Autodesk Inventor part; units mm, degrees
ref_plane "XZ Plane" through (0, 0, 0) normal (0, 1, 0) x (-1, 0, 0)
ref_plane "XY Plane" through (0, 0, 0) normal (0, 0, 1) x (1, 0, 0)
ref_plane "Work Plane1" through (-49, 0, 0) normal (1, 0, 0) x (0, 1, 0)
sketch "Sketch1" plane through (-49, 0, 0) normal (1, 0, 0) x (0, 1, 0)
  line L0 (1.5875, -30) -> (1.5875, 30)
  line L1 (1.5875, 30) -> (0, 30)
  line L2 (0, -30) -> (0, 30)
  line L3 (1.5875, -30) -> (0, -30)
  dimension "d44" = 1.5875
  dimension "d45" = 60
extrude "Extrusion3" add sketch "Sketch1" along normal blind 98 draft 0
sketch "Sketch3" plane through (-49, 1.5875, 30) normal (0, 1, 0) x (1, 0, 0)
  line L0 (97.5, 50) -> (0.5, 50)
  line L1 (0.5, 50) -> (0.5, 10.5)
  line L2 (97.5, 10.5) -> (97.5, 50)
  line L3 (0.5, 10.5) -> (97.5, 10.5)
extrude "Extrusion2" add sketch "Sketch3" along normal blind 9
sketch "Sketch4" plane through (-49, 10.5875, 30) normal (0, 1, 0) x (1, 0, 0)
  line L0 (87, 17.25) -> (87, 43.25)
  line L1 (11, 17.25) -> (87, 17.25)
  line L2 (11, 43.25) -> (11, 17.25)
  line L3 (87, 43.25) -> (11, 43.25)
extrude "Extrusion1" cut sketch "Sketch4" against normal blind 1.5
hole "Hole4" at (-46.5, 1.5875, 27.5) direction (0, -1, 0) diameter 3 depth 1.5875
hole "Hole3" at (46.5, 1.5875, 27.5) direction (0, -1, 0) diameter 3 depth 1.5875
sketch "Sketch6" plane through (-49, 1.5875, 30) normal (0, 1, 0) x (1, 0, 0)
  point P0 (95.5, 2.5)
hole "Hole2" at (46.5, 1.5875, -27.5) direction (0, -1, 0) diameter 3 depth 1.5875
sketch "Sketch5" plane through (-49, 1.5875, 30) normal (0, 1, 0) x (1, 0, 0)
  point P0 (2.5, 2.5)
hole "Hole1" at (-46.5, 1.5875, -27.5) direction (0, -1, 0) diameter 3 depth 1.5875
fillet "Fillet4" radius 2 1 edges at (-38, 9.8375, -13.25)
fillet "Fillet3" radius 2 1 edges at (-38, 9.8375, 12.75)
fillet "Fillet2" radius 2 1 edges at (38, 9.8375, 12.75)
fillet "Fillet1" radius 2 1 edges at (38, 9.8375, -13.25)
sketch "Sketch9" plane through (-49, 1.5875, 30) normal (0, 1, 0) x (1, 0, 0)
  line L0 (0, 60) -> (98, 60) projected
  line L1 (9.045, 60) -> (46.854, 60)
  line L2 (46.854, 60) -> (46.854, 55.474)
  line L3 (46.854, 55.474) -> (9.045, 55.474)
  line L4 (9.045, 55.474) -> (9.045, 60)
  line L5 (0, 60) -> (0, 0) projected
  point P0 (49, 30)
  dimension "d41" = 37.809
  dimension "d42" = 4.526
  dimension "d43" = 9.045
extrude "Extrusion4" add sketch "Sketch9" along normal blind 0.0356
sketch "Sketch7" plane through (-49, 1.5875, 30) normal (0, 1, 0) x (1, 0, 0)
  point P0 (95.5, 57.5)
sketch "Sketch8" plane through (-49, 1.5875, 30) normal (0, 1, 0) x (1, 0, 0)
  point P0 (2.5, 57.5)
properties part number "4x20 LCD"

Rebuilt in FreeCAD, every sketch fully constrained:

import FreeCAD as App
import Part
import Sketcher
Q = App.Units.Quantity


def edges_at(feature, points):
    """Names of the edges that pass closest to the given points."""
    edges = feature.Shape.Edges
    near = lambda p: min(range(len(edges)), key=lambda i: edges[i].distToShape(Part.Vertex(*p))[0])
    return sorted({f"Edge{near(p) + 1}" for p in points})

doc = App.newDocument("Part")
body = doc.addObject("PartDesign::Body", "Body")

# Sketch on YZ plane
sketch1 = body.newObject("Sketcher::SketchObject", "Sketch")
sketch1.AttachmentSupport = (doc.getObject("YZ_Plane"), [""])
sketch1.MapMode = "FlatFace"
sketch1.AttachmentOffset = App.Placement(App.Vector(0, 0, -49), App.Rotation())
sketch1.addGeometry(Part.LineSegment(App.Vector(0, -30, 0), App.Vector(1.6, -30, 0)), False)
sketch1.addGeometry(Part.LineSegment(App.Vector(1.6, -30, 0), App.Vector(1.6, 30, 0)), False)
sketch1.addGeometry(Part.LineSegment(App.Vector(1.6, 30, 0), App.Vector(0, 30, 0)), False)
sketch1.addGeometry(Part.LineSegment(App.Vector(0, 30, 0), App.Vector(0, -30, 0)), False)
sketch1.addConstraint(Sketcher.Constraint("Coincident", 0, 2, 1, 1))
sketch1.addConstraint(Sketcher.Constraint("Coincident", 1, 2, 2, 1))
sketch1.addConstraint(Sketcher.Constraint("Coincident", 2, 2, 3, 1))
sketch1.addConstraint(Sketcher.Constraint("Coincident", 3, 2, 0, 1))
sketch1.addConstraint(Sketcher.Constraint("Horizontal", 0))
sketch1.addConstraint(Sketcher.Constraint("Vertical", 1))
sketch1.addConstraint(Sketcher.Constraint("Horizontal", 2))
sketch1.addConstraint(Sketcher.Constraint("Vertical", 3))
sketch1.addConstraint(Sketcher.Constraint("Symmetric", 2, 2, 3, 2, -1, 1))
sketch1.addConstraint(Sketcher.Constraint("DistanceY", 1, 1, 1, 2, Q("60 mm")))
sketch1.addConstraint(Sketcher.Constraint("DistanceX", 0, 1, 0, 2, Q("1.5875 mm")))
pad1 = body.newObject("PartDesign::Pad", "Pad")
pad1.Profile = sketch1
pad1.Length = 98

# Sketch on XZ plane
sketch2 = body.newObject("Sketcher::SketchObject", "Sketch001")
sketch2.AttachmentSupport = (doc.getObject("XZ_Plane"), [""])
sketch2.MapMode = "FlatFace"
sketch2.AttachmentOffset = App.Placement(App.Vector(0, 0, -1.5875), App.Rotation())
sketch2.addGeometry(Part.LineSegment(App.Vector(48, 20, 0), App.Vector(48, -20, 0)), False)
sketch2.addGeometry(Part.LineSegment(App.Vector(48, -20, 0), App.Vector(-48, -20, 0)), False)
sketch2.addGeometry(Part.LineSegment(App.Vector(-48, -20, 0), App.Vector(-48, 20, 0)), False)
sketch2.addGeometry(Part.LineSegment(App.Vector(-48, 20, 0), App.Vector(48, 20, 0)), False)
sketch2.addConstraint(Sketcher.Constraint("Coincident", 0, 2, 1, 1))
sketch2.addConstraint(Sketcher.Constraint("Coincident", 1, 2, 2, 1))
sketch2.addConstraint(Sketcher.Constraint("Coincident", 2, 2, 3, 1))
sketch2.addConstraint(Sketcher.Constraint("Coincident", 3, 2, 0, 1))
sketch2.addConstraint(Sketcher.Constraint("Vertical", 0))
sketch2.addConstraint(Sketcher.Constraint("Horizontal", 1))
sketch2.addConstraint(Sketcher.Constraint("Vertical", 2))
sketch2.addConstraint(Sketcher.Constraint("Horizontal", 3))
sketch2.addConstraint(Sketcher.Constraint("DistanceX", 1, 2, 1, 1, Q("97 mm")))
sketch2.addConstraint(Sketcher.Constraint("DistanceY", 0, 2, 0, 1, Q("39.5 mm")))
sketch2.addConstraint(Sketcher.Constraint("DistanceY", 0, 2, -1, 1, Q("20 mm")))
sketch2.addConstraint(Sketcher.Constraint("DistanceX", -1, 1, 0, 2, Q("48.5 mm")))
pad2 = body.newObject("PartDesign::Pad", "Pad001")
pad2.Profile = sketch2
pad2.Length = 9
pad2.Reversed = True

# Sketch on XZ plane
sketch3 = body.newObject("Sketcher::SketchObject", "Sketch002")
sketch3.AttachmentSupport = (doc.getObject("XZ_Plane"), [""])
sketch3.MapMode = "FlatFace"
sketch3.AttachmentOffset = App.Placement(App.Vector(0, 0, -10.5875), App.Rotation())
sketch3.addGeometry(Part.LineSegment(App.Vector(-38, 13, 0), App.Vector(38, 13, 0)), False)
sketch3.addGeometry(Part.LineSegment(App.Vector(38, 13, 0), App.Vector(38, -13, 0)), False)
sketch3.addGeometry(Part.LineSegment(App.Vector(38, -13, 0), App.Vector(-38, -13, 0)), False)
sketch3.addGeometry(Part.LineSegment(App.Vector(-38, -13, 0), App.Vector(-38, 13, 0)), False)
sketch3.addConstraint(Sketcher.Constraint("Coincident", 0, 2, 1, 1))
sketch3.addConstraint(Sketcher.Constraint("Coincident", 1, 2, 2, 1))
sketch3.addConstraint(Sketcher.Constraint("Coincident", 2, 2, 3, 1))
sketch3.addConstraint(Sketcher.Constraint("Coincident", 3, 2, 0, 1))
sketch3.addConstraint(Sketcher.Constraint("Horizontal", 0))
sketch3.addConstraint(Sketcher.Constraint("Vertical", 1))
sketch3.addConstraint(Sketcher.Constraint("Horizontal", 2))
sketch3.addConstraint(Sketcher.Constraint("Vertical", 3))
sketch3.addConstraint(Sketcher.Constraint("DistanceX", 0, 1, 0, 2, Q("76 mm")))
sketch3.addConstraint(Sketcher.Constraint("DistanceY", 1, 2, 1, 1, Q("26 mm")))
sketch3.addConstraint(Sketcher.Constraint("DistanceX", -1, 1, 0, 2, Q("38 mm")))
sketch3.addConstraint(Sketcher.Constraint("DistanceY", -1, 1, 0, 2, Q("12.75 mm")))
pocket1 = body.newObject("PartDesign::Pocket", "Pocket")
pocket1.Profile = sketch3
pocket1.Length = 1.5
pocket1.Reversed = True

# Sketch on XZ plane
sketch4 = body.newObject("Sketcher::SketchObject", "Sketch003")
sketch4.AttachmentSupport = (doc.getObject("XZ_Plane"), [""])
sketch4.MapMode = "FlatFace"
sketch4.AttachmentOffset = App.Placement(App.Vector(0, 0, -1.5875), App.Rotation())
sketch4.addGeometry(Part.Circle(App.Vector(-46.5, 27.5, 0), App.Vector(0, 0, 1), 1.5), False)
sketch4.addConstraint(Sketcher.Constraint("Diameter", 0, Q("3 mm")))
sketch4.addConstraint(Sketcher.Constraint("DistanceX", 0, 3, -1, 1, Q("46.5 mm")))
sketch4.addConstraint(Sketcher.Constraint("DistanceY", -1, 1, 0, 3, Q("27.5 mm")))
doc.recompute()
hole = body.newObject("PartDesign::Hole", "Hole")
hole.Profile = sketch4
hole.ThreadType = "None"
hole.Diameter = 3
hole.DepthType = "Dimension"
hole.Depth = 1.5875
hole.DrillPoint = "Flat"
hole.Reversed = True

# Sketch on XZ plane
sketch5 = body.newObject("Sketcher::SketchObject", "Sketch004")
sketch5.AttachmentSupport = (doc.getObject("XZ_Plane"), [""])
sketch5.MapMode = "FlatFace"
sketch5.AttachmentOffset = App.Placement(App.Vector(0, 0, -1.5875), App.Rotation())
sketch5.addGeometry(Part.Circle(App.Vector(46.5, 27.5, 0), App.Vector(0, 0, 1), 1.5), False)
sketch5.addConstraint(Sketcher.Constraint("Diameter", 0, Q("3 mm")))
sketch5.addConstraint(Sketcher.Constraint("DistanceX", -1, 1, 0, 3, Q("46.5 mm")))
sketch5.addConstraint(Sketcher.Constraint("DistanceY", -1, 1, 0, 3, Q("27.5 mm")))
doc.recompute()
hole2 = body.newObject("PartDesign::Hole", "Hole001")
hole2.Profile = sketch5
hole2.ThreadType = "None"
hole2.Diameter = 3
hole2.DepthType = "Dimension"
hole2.Depth = 1.5875
hole2.DrillPoint = "Flat"
hole2.Reversed = True

# Sketch on XZ plane
sketch6 = body.newObject("Sketcher::SketchObject", "Sketch005")
sketch6.AttachmentSupport = (doc.getObject("XZ_Plane"), [""])
sketch6.MapMode = "FlatFace"
sketch6.AttachmentOffset = App.Placement(App.Vector(0, 0, -1.5875), App.Rotation())
sketch6.addGeometry(Part.Circle(App.Vector(46.5, -27.5, 0), App.Vector(0, 0, 1), 1.5), False)
sketch6.addConstraint(Sketcher.Constraint("Diameter", 0, Q("3 mm")))
sketch6.addConstraint(Sketcher.Constraint("DistanceX", -1, 1, 0, 3, Q("46.5 mm")))
sketch6.addConstraint(Sketcher.Constraint("DistanceY", 0, 3, -1, 1, Q("27.5 mm")))
doc.recompute()
hole3 = body.newObject("PartDesign::Hole", "Hole002")
hole3.Profile = sketch6
hole3.ThreadType = "None"
hole3.Diameter = 3
hole3.DepthType = "Dimension"
hole3.Depth = 1.5875
hole3.DrillPoint = "Flat"
hole3.Reversed = True

# Sketch on XZ plane
sketch7 = body.newObject("Sketcher::SketchObject", "Sketch006")
sketch7.AttachmentSupport = (doc.getObject("XZ_Plane"), [""])
sketch7.MapMode = "FlatFace"
sketch7.AttachmentOffset = App.Placement(App.Vector(0, 0, -1.5875), App.Rotation())
sketch7.addGeometry(Part.Circle(App.Vector(-46.5, -27.5, 0), App.Vector(0, 0, 1), 1.5), False)
sketch7.addConstraint(Sketcher.Constraint("Diameter", 0, Q("3 mm")))
sketch7.addConstraint(Sketcher.Constraint("DistanceX", 0, 3, -1, 1, Q("46.5 mm")))
sketch7.addConstraint(Sketcher.Constraint("DistanceY", 0, 3, -1, 1, Q("27.5 mm")))
doc.recompute()
hole4 = body.newObject("PartDesign::Hole", "Hole003")
hole4.Profile = sketch7
hole4.ThreadType = "None"
hole4.Diameter = 3
hole4.DepthType = "Dimension"
hole4.Depth = 1.5875
hole4.DrillPoint = "Flat"
hole4.Reversed = True
doc.recompute()

fillet = body.newObject("PartDesign::Fillet", "Fillet")
fillet.Base = (hole4, edges_at(hole4, [(-38, 9.838, -13.25)]))
fillet.Radius = 2
doc.recompute()

fillet2 = body.newObject("PartDesign::Fillet", "Fillet001")
fillet2.Base = (fillet, edges_at(fillet, [(-38, 9.838, 12.75)]))
fillet2.Radius = 2
doc.recompute()

fillet3 = body.newObject("PartDesign::Fillet", "Fillet002")
fillet3.Base = (fillet2, edges_at(fillet2, [(38, 9.838, 12.75)]))
fillet3.Radius = 2
doc.recompute()

fillet4 = body.newObject("PartDesign::Fillet", "Fillet003")
fillet4.Base = (fillet3, edges_at(fillet3, [(38, 9.838, -13.25)]))
fillet4.Radius = 2

# Sketch on XZ plane
sketch8 = body.newObject("Sketcher::SketchObject", "Sketch007")
sketch8.AttachmentSupport = (doc.getObject("XZ_Plane"), [""])
sketch8.MapMode = "FlatFace"
sketch8.AttachmentOffset = App.Placement(App.Vector(0, 0, -1.5875), App.Rotation())
sketch8.addGeometry(Part.LineSegment(App.Vector(-2.1, -30, 0), App.Vector(-40, -30, 0)), False)
sketch8.addGeometry(Part.LineSegment(App.Vector(-40, -30, 0), App.Vector(-40, -25.5, 0)), False)
sketch8.addGeometry(Part.LineSegment(App.Vector(-40, -25.5, 0), App.Vector(-2.1, -25.5, 0)), False)
sketch8.addGeometry(Part.LineSegment(App.Vector(-2.1, -25.5, 0), App.Vector(-2.1, -30, 0)), False)
sketch8.addConstraint(Sketcher.Constraint("Coincident", 0, 2, 1, 1))
sketch8.addConstraint(Sketcher.Constraint("Coincident", 1, 2, 2, 1))
sketch8.addConstraint(Sketcher.Constraint("Coincident", 2, 2, 3, 1))
sketch8.addConstraint(Sketcher.Constraint("Coincident", 3, 2, 0, 1))
sketch8.addConstraint(Sketcher.Constraint("Horizontal", 0))
sketch8.addConstraint(Sketcher.Constraint("Vertical", 1))
sketch8.addConstraint(Sketcher.Constraint("Horizontal", 2))
sketch8.addConstraint(Sketcher.Constraint("Vertical", 3))
sketch8.addConstraint(Sketcher.Constraint("DistanceX", 0, 2, 0, 1, Q("37.809 mm")))
sketch8.addConstraint(Sketcher.Constraint("DistanceY", 1, 1, 1, 2, Q("4.526 mm")))
sketch8.addConstraint(Sketcher.Constraint("DistanceY", 0, 2, -1, 1, Q("30 mm")))
sketch8.addConstraint(Sketcher.Constraint("DistanceX", 0, 2, -1, 1, Q("39.955 mm")))
pad3 = body.newObject("PartDesign::Pad", "Pad002")
pad3.Profile = sketch8
pad3.Length = 0.0356
pad3.Reversed = True

doc.recompute()
